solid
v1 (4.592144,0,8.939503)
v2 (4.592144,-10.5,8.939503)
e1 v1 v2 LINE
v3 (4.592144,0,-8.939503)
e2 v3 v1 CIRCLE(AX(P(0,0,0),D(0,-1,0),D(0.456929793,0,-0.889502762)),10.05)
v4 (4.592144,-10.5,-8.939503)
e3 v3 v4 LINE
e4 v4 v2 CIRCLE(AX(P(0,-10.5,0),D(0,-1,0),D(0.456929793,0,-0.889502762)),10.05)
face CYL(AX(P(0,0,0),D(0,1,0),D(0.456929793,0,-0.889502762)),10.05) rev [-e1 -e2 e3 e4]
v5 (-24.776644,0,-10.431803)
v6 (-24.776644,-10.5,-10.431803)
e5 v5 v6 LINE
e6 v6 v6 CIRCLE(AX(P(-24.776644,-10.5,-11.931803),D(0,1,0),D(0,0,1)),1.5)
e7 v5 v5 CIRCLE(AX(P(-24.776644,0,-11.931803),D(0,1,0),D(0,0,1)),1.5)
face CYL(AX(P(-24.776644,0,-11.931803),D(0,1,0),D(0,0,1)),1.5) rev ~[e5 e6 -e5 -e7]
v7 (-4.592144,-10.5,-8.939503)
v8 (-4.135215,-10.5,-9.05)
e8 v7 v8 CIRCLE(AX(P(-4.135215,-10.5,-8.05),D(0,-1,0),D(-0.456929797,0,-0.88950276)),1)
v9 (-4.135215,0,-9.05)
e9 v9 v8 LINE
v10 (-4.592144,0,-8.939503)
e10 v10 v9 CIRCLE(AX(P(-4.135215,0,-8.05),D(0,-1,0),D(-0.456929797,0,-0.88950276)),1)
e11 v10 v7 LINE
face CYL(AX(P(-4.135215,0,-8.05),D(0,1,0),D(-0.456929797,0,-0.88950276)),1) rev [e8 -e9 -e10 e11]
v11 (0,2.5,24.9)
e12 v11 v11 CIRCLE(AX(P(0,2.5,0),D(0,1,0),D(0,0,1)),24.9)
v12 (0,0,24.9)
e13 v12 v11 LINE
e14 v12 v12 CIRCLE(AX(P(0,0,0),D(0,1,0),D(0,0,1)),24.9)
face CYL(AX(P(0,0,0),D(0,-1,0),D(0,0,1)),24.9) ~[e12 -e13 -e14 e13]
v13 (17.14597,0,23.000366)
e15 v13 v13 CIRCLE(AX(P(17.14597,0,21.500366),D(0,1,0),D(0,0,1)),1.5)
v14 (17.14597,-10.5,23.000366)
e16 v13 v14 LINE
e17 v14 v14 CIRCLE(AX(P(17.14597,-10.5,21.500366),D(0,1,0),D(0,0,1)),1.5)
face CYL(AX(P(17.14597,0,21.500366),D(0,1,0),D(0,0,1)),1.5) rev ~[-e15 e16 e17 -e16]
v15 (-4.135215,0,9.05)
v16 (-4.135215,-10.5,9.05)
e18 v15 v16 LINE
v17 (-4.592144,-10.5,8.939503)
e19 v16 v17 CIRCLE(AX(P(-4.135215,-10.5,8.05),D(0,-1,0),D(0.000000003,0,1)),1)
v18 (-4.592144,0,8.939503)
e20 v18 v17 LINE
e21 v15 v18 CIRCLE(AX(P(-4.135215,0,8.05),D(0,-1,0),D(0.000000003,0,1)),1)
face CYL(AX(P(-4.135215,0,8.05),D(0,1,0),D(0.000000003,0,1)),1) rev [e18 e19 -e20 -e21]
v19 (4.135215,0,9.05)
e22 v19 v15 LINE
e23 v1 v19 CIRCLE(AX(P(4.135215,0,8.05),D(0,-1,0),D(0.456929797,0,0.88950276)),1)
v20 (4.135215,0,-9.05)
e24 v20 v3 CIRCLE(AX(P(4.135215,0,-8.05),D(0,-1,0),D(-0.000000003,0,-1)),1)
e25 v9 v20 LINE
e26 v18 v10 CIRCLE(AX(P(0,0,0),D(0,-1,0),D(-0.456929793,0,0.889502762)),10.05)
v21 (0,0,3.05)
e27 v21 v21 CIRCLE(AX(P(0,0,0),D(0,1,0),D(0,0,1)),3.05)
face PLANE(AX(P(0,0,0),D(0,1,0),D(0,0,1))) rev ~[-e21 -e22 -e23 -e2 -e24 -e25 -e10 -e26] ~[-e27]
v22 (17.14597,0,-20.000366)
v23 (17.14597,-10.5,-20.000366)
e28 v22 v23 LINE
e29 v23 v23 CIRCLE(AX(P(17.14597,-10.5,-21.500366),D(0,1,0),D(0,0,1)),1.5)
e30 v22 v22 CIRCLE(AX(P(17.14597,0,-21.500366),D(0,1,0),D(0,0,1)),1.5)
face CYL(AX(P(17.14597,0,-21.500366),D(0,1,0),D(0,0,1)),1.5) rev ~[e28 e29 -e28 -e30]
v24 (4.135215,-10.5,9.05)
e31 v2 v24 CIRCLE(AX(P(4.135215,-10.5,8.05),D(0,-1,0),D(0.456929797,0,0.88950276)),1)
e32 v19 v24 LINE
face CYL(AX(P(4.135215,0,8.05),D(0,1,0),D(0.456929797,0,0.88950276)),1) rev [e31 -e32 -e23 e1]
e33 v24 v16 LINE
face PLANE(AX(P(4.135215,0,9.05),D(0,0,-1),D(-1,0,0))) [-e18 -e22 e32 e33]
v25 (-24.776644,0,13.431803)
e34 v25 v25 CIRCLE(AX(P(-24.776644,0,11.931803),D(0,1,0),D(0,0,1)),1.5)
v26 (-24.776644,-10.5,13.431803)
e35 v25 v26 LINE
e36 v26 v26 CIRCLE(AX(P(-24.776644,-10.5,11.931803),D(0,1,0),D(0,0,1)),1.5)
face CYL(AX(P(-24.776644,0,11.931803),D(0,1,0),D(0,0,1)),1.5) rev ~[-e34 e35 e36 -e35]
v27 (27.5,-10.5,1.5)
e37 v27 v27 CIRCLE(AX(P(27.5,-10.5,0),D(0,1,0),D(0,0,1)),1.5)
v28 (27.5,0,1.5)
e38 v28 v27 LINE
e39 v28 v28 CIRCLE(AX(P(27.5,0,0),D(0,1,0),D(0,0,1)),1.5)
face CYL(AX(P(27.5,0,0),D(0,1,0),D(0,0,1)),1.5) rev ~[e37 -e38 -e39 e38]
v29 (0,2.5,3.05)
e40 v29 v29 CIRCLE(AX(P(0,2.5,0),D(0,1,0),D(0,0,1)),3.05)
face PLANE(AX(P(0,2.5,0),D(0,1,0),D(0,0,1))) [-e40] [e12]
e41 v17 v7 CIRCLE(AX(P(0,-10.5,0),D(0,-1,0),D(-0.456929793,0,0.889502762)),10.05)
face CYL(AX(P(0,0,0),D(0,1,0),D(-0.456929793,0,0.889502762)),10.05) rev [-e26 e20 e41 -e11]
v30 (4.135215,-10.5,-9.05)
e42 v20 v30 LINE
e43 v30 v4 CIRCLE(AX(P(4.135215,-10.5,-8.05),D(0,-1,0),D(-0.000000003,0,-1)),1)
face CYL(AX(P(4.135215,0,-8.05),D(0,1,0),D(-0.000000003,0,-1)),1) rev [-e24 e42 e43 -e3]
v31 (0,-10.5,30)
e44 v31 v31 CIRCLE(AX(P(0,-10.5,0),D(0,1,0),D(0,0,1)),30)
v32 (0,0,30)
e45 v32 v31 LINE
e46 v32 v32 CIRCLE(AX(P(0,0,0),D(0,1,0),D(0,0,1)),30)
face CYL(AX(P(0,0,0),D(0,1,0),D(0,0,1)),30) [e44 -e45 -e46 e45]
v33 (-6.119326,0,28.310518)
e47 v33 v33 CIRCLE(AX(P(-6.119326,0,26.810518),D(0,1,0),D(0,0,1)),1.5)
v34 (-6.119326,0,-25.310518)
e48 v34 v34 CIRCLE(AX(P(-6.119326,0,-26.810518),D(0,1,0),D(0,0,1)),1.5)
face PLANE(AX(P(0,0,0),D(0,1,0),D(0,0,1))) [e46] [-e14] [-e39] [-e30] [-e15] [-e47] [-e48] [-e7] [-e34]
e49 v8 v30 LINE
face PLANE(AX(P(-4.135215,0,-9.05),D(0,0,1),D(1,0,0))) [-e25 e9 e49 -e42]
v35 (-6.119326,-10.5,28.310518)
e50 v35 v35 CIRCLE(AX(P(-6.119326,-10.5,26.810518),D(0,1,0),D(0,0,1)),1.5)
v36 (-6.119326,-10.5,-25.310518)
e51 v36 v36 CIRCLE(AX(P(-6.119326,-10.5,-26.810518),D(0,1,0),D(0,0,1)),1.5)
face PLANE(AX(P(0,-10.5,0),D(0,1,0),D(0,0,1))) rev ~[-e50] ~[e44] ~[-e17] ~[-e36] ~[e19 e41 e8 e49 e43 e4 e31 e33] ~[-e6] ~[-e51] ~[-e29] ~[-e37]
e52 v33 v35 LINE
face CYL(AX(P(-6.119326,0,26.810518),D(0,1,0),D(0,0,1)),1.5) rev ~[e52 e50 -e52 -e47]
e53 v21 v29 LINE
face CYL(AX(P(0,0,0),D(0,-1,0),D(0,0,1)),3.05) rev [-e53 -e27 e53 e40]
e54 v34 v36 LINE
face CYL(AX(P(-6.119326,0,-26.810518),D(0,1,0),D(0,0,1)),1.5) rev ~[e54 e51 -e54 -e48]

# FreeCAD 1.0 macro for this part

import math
import FreeCAD as App
import Part
import Sketcher

V = App.Vector

doc = App.newDocument("Part")
body = doc.addObject("PartDesign::Body", "Body")

# Sketch on XZ plane
sketch1 = body.newObject("Sketcher::SketchObject", "Sketch")
sketch1.AttachmentSupport = (doc.getObject("XZ_Plane"), [""])
sketch1.MapMode = "FlatFace"
sketch1.addGeometry([
    Part.Circle(V(0, 0, 0), V(0, 0, 1), 24.9),
    Part.Circle(V(0, 0, 0), V(0, 0, 1), 3),
], False)
sketch1.addConstraint([
    Sketcher.Constraint("Coincident", 0, 3, -1, 1),
    Sketcher.Constraint("Coincident", 1, 3, -1, 1),
    Sketcher.Constraint("Diameter", 0, 49.8),
    Sketcher.Constraint("Diameter", 1, 6.1),
])
pad1 = body.newObject("PartDesign::Pad", "Pad")
pad1.Profile = sketch1
pad1.Length = 2.5
pad1.Reversed = True

# Sketch on XZ plane
sketch2 = body.newObject("Sketcher::SketchObject", "Sketch001")
sketch2.AttachmentSupport = (doc.getObject("XZ_Plane"), [""])
sketch2.MapMode = "FlatFace"
sketch2.addGeometry([
    Part.Circle(V(0, 0, 0), V(0, 0, 1), 30),  # 0
    Part.ArcOfCircle(Part.Circle(V(-4.14, -8.05, 0), V(0, 0, 1), 1), math.radians(-117), math.radians(-90)),  # 1
    Part.LineSegment(V(-4.14, -9.05, 0), V(4.14, -9.05, 0)),  # 2
    Part.ArcOfCircle(Part.Circle(V(4.14, -8.05, 0), V(0, 0, 1), 1), math.radians(-90), math.radians(-63)),  # 3
    Part.ArcOfCircle(Part.Circle(V(0, 0, 0), V(0, 0, 1), 10.05), math.radians(-63), math.radians(63)),  # 4
    Part.ArcOfCircle(Part.Circle(V(4.14, 8.05, 0), V(0, 0, 1), 1), math.radians(63), math.radians(90)),  # 5
    Part.LineSegment(V(4.14, 9.05, 0), V(-4.14, 9.05, 0)),  # 6
    Part.ArcOfCircle(Part.Circle(V(-4.14, 8.05, 0), V(0, 0, 1), 1), math.radians(90), math.radians(117)),  # 7
    Part.ArcOfCircle(Part.Circle(V(0, 0, 0), V(0, 0, 1), 10.05), math.radians(117), math.radians(243)),  # 8
], False)
sketch2.addConstraint([
    Sketcher.Constraint("Tangent", 1, 2, 2, 1),
    Sketcher.Constraint("Tangent", 2, 2, 3, 1),
    Sketcher.Constraint("Tangent", 3, 2, 4, 1),
    Sketcher.Constraint("Tangent", 4, 2, 5, 1),
    Sketcher.Constraint("Tangent", 5, 2, 6, 1),
    Sketcher.Constraint("Tangent", 6, 2, 7, 1),
    Sketcher.Constraint("Tangent", 7, 2, 8, 1),
    Sketcher.Constraint("Tangent", 8, 2, 1, 1),
    Sketcher.Constraint("Horizontal", 2),
    Sketcher.Constraint("Horizontal", 6),
    Sketcher.Constraint("Coincident", 0, 3, -1, 1),
    Sketcher.Constraint("Coincident", 4, 3, -1, 1),
    Sketcher.Constraint("Coincident", 8, 3, -1, 1),
    Sketcher.Constraint("Equal", 1, 3),
    Sketcher.Constraint("Equal", 3, 5),
    Sketcher.Constraint("Equal", 5, 7),
    Sketcher.Constraint("Equal", 4, 8),
    Sketcher.Constraint("Vertical", 3, 3, 5, 3),
    Sketcher.Constraint("Diameter", 0, 60.0),
    Sketcher.Constraint("Radius", 1, 1.0),
    Sketcher.Constraint("Radius", 4, 10.05),
    Sketcher.Constraint("DistanceY", 3, 3, 5, 3, 16.1),
])
pad2 = body.newObject("PartDesign::Pad", "Pad001")
pad2.Profile = sketch2
pad2.Length = 10.5

# Sketch on XZ plane
sketch3 = body.newObject("Sketcher::SketchObject", "Sketch002")
sketch3.AttachmentSupport = (doc.getObject("XZ_Plane"), [""])
sketch3.MapMode = "FlatFace"
sketch3.addGeometry([
    Part.Circle(V(27.5, 0, 0), V(0, 0, 1), 1.5),  # 0
    Part.Circle(V(17.1, 21.5, 0), V(0, 0, 1), 1.5),  # 1
    Part.Circle(V(-6.1, 26.8, 0), V(0, 0, 1), 1.5),  # 2
    Part.Circle(V(-24.8, 11.9, 0), V(0, 0, 1), 1.5),  # 3
    Part.Circle(V(-24.8, -11.9, 0), V(0, 0, 1), 1.5),  # 4
    Part.Circle(V(-6.1, -26.8, 0), V(0, 0, 1), 1.5),  # 5
    Part.Circle(V(17.1, -21.5, 0), V(0, 0, 1), 1.5),  # 6
], False)
sketch3.addConstraint([
    Sketcher.Constraint("Equal", 0, 1),
    Sketcher.Constraint("Equal", 1, 2),
    Sketcher.Constraint("Equal", 2, 3),
    Sketcher.Constraint("Equal", 3, 4),
    Sketcher.Constraint("Equal", 4, 5),
    Sketcher.Constraint("Equal", 5, 6),
    Sketcher.Constraint("Symmetric", 3, 3, 4, 3, -1),
    Sketcher.Constraint("Symmetric", 2, 3, 5, 3, -1),
    Sketcher.Constraint("Symmetric", 1, 3, 6, 3, -1),
    Sketcher.Constraint("PointOnObject", 0, 3, -1),
    Sketcher.Constraint("Diameter", 0, 3.0),
    Sketcher.Constraint("DistanceX", -1, 1, 0, 3, 27.5),
    Sketcher.Constraint("DistanceX", -1, 1, 1, 3, 17.14597),
    Sketcher.Constraint("DistanceY", 1, 3, 2, 3, 5.310152),
    Sketcher.Constraint("DistanceX", 3, 3, 2, 3, 18.657318),
    Sketcher.Constraint("DistanceY", 4, 3, 2, 3, 38.74232),
    Sketcher.Constraint("DistanceY", 6, 3, 1, 3, 43.000732),
    Sketcher.Constraint("DistanceX", 2, 3, -1, 1, 6.119326),
])
pocket1 = body.newObject("PartDesign::Pocket", "Pocket")
pocket1.Profile = sketch3
pocket1.Type = "ThroughAll"
pocket1.Reversed = True

doc.recompute()
